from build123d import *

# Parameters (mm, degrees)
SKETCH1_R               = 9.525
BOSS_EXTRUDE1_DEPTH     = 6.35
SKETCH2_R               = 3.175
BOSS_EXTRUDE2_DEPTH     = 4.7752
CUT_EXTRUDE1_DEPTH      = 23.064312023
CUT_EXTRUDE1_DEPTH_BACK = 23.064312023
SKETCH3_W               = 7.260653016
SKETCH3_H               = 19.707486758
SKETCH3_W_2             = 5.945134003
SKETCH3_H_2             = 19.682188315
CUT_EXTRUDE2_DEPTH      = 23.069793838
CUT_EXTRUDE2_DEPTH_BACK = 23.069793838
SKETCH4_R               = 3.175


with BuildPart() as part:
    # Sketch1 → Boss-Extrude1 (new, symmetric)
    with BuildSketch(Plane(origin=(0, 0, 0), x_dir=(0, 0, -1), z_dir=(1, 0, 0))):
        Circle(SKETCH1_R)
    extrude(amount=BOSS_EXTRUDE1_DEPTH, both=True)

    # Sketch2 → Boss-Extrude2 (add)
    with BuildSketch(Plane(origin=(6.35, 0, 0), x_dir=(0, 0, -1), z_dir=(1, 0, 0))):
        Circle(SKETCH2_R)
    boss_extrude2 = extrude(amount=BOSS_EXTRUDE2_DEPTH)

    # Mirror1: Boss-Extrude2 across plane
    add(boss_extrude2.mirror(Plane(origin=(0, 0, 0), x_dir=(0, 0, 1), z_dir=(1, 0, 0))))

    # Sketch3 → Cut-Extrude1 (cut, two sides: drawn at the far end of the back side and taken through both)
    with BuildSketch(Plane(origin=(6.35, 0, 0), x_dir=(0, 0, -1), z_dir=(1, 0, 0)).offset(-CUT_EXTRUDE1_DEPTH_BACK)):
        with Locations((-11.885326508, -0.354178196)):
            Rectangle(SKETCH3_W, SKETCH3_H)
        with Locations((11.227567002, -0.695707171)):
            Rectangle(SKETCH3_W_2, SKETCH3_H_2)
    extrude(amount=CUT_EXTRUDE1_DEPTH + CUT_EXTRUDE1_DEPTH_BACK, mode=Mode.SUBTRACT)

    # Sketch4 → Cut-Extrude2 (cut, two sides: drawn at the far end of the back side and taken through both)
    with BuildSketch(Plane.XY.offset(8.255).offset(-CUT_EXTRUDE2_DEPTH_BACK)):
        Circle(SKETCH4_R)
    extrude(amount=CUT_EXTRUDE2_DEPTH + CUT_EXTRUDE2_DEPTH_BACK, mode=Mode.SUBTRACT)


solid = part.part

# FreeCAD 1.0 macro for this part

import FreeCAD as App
import Part
import Sketcher

V = App.Vector
Q = App.Units.Quantity

doc = App.newDocument("Part")
body = doc.addObject("PartDesign::Body", "Body")

# Sketch on YZ plane
sketch1 = body.newObject("Sketcher::SketchObject", "Sketch")
sketch1.AttachmentSupport = (doc.getObject("YZ_Plane"), [""])
sketch1.MapMode = "FlatFace"
sketch1.addGeometry(Part.Circle(V(0, 0, 0), V(0, 0, 1), 9.525), False)
sketch1.addConstraint([
    Sketcher.Constraint("Coincident", 0, 3, -1, 1),
    Sketcher.Constraint("Diameter", 0, Q("0.75 in")),
])
pad1 = body.newObject("PartDesign::Pad", "Pad")
pad1.Profile = sketch1
pad1.Length = Q("0.5 in")
pad1.Midplane = True

# Sketch on YZ plane
sketch2 = body.newObject("Sketcher::SketchObject", "Sketch001")
sketch2.AttachmentSupport = (doc.getObject("YZ_Plane"), [""])
sketch2.MapMode = "FlatFace"
sketch2.AttachmentOffset = App.Placement(V(0, 0, 0.25 * 25.4), App.Rotation())
sketch2.addGeometry(Part.Circle(V(0, 0, 0), V(0, 0, 1), 3.175), False)
sketch2.addConstraint([
    Sketcher.Constraint("Coincident", 0, 3, -1, 1),
    Sketcher.Constraint("Diameter", 0, Q("0.25 in")),
])
pad2 = body.newObject("PartDesign::Pad", "Pad001")
pad2.Profile = sketch2
pad2.Length = Q("0.188 in")
doc.recompute()

mirrored = body.newObject("PartDesign::Mirrored", "Mirrored")
mirrored.Originals = [pad2]
mirrored.MirrorPlane = (doc.getObject("YZ_Plane"), [""])
body.Tip = mirrored

# Sketch on YZ plane
sketch3 = body.newObject("Sketcher::SketchObject", "Sketch002")
sketch3.AttachmentSupport = (doc.getObject("YZ_Plane"), [""])
sketch3.MapMode = "FlatFace"
sketch3.AttachmentOffset = App.Placement(V(0, 0, 0.25 * 25.4), App.Rotation())
sketch3.addGeometry([
    Part.LineSegment(V(9.499565, 15.515653, 0), V(-10.207922, 15.515653, 0)),  # 0
    Part.LineSegment(V(-10.207922, 15.515653, 0), V(-10.207922, 8.255, 0)),  # 1
    Part.LineSegment(V(-10.207922, 8.255, 0), V(9.499565, 8.255, 0)),  # 2
    Part.LineSegment(V(9.499565, 8.255, 0), V(9.499565, 15.515653, 0)),  # 3
    Part.LineSegment(V(9.145387, -8.255, 0), V(-10.536801, -8.255, 0)),  # 4
    Part.LineSegment(V(-10.536801, -8.255, 0), V(-10.536801, -14.200134, 0)),  # 5
    Part.LineSegment(V(-10.536801, -14.200134, 0), V(9.145387, -14.200134, 0)),  # 6
    Part.LineSegment(V(9.145387, -14.200134, 0), V(9.145387, -8.255, 0)),  # 7
], False)
sketch3.addConstraint([
    Sketcher.Constraint("Coincident", 0, 2, 1, 1),
    Sketcher.Constraint("Coincident", 1, 2, 2, 1),
    Sketcher.Constraint("Coincident", 2, 2, 3, 1),
    Sketcher.Constraint("Coincident", 3, 2, 0, 1),
    Sketcher.Constraint("Coincident", 4, 2, 5, 1),
    Sketcher.Constraint("Coincident", 5, 2, 6, 1),
    Sketcher.Constraint("Coincident", 6, 2, 7, 1),
    Sketcher.Constraint("Coincident", 7, 2, 4, 1),
    Sketcher.Constraint("Horizontal", 0),
    Sketcher.Constraint("Vertical", 1),
    Sketcher.Constraint("Horizontal", 2),
    Sketcher.Constraint("Vertical", 3),
    Sketcher.Constraint("Horizontal", 4),
    Sketcher.Constraint("Vertical", 5),
    Sketcher.Constraint("Horizontal", 6),
    Sketcher.Constraint("Vertical", 7),
    Sketcher.Constraint("DistanceY", 4, 2, 1, 2, Q("0.65 in")),
    Sketcher.Constraint("DistanceY", -1, 1, 1, 2, Q("0.325 in")),
    Sketcher.Constraint("DistanceX", 4, 2, 4, 1, Q("19.682188 mm")),
    Sketcher.Constraint("DistanceX", 4, 2, -1, 1, Q("10.536801 mm")),
    Sketcher.Constraint("DistanceX", 0, 2, 0, 1, Q("19.707487 mm")),
    Sketcher.Constraint("DistanceY", 1, 2, 1, 1, Q("7.260653 mm")),
    Sketcher.Constraint("DistanceY", 5, 2, 5, 1, Q("5.945134 mm")),
    Sketcher.Constraint("DistanceX", 0, 2, -1, 1, Q("10.207922 mm")),
])
pocket1 = body.newObject("PartDesign::Pocket", "Pocket")
pocket1.Profile = sketch3
pocket1.Type = "ThroughAll"
pocket1.Midplane = True

# Sketch on XY plane
sketch4 = body.newObject("Sketcher::SketchObject", "Sketch003")
sketch4.AttachmentSupport = (doc.getObject("XY_Plane"), [""])
sketch4.MapMode = "FlatFace"
sketch4.AttachmentOffset = App.Placement(V(0, 0, 0.325 * 25.4), App.Rotation())
sketch4.addGeometry(Part.Circle(V(0, 0, 0), V(0, 0, 1), 3.175), False)
sketch4.addConstraint([
    Sketcher.Constraint("Coincident", 0, 3, -1, 1),
    Sketcher.Constraint("Diameter", 0, Q("0.25 in")),
])
pocket2 = body.newObject("PartDesign::Pocket", "Pocket001")
pocket2.Profile = sketch4
pocket2.Type = "ThroughAll"
pocket2.Midplane = True

doc.recompute()
